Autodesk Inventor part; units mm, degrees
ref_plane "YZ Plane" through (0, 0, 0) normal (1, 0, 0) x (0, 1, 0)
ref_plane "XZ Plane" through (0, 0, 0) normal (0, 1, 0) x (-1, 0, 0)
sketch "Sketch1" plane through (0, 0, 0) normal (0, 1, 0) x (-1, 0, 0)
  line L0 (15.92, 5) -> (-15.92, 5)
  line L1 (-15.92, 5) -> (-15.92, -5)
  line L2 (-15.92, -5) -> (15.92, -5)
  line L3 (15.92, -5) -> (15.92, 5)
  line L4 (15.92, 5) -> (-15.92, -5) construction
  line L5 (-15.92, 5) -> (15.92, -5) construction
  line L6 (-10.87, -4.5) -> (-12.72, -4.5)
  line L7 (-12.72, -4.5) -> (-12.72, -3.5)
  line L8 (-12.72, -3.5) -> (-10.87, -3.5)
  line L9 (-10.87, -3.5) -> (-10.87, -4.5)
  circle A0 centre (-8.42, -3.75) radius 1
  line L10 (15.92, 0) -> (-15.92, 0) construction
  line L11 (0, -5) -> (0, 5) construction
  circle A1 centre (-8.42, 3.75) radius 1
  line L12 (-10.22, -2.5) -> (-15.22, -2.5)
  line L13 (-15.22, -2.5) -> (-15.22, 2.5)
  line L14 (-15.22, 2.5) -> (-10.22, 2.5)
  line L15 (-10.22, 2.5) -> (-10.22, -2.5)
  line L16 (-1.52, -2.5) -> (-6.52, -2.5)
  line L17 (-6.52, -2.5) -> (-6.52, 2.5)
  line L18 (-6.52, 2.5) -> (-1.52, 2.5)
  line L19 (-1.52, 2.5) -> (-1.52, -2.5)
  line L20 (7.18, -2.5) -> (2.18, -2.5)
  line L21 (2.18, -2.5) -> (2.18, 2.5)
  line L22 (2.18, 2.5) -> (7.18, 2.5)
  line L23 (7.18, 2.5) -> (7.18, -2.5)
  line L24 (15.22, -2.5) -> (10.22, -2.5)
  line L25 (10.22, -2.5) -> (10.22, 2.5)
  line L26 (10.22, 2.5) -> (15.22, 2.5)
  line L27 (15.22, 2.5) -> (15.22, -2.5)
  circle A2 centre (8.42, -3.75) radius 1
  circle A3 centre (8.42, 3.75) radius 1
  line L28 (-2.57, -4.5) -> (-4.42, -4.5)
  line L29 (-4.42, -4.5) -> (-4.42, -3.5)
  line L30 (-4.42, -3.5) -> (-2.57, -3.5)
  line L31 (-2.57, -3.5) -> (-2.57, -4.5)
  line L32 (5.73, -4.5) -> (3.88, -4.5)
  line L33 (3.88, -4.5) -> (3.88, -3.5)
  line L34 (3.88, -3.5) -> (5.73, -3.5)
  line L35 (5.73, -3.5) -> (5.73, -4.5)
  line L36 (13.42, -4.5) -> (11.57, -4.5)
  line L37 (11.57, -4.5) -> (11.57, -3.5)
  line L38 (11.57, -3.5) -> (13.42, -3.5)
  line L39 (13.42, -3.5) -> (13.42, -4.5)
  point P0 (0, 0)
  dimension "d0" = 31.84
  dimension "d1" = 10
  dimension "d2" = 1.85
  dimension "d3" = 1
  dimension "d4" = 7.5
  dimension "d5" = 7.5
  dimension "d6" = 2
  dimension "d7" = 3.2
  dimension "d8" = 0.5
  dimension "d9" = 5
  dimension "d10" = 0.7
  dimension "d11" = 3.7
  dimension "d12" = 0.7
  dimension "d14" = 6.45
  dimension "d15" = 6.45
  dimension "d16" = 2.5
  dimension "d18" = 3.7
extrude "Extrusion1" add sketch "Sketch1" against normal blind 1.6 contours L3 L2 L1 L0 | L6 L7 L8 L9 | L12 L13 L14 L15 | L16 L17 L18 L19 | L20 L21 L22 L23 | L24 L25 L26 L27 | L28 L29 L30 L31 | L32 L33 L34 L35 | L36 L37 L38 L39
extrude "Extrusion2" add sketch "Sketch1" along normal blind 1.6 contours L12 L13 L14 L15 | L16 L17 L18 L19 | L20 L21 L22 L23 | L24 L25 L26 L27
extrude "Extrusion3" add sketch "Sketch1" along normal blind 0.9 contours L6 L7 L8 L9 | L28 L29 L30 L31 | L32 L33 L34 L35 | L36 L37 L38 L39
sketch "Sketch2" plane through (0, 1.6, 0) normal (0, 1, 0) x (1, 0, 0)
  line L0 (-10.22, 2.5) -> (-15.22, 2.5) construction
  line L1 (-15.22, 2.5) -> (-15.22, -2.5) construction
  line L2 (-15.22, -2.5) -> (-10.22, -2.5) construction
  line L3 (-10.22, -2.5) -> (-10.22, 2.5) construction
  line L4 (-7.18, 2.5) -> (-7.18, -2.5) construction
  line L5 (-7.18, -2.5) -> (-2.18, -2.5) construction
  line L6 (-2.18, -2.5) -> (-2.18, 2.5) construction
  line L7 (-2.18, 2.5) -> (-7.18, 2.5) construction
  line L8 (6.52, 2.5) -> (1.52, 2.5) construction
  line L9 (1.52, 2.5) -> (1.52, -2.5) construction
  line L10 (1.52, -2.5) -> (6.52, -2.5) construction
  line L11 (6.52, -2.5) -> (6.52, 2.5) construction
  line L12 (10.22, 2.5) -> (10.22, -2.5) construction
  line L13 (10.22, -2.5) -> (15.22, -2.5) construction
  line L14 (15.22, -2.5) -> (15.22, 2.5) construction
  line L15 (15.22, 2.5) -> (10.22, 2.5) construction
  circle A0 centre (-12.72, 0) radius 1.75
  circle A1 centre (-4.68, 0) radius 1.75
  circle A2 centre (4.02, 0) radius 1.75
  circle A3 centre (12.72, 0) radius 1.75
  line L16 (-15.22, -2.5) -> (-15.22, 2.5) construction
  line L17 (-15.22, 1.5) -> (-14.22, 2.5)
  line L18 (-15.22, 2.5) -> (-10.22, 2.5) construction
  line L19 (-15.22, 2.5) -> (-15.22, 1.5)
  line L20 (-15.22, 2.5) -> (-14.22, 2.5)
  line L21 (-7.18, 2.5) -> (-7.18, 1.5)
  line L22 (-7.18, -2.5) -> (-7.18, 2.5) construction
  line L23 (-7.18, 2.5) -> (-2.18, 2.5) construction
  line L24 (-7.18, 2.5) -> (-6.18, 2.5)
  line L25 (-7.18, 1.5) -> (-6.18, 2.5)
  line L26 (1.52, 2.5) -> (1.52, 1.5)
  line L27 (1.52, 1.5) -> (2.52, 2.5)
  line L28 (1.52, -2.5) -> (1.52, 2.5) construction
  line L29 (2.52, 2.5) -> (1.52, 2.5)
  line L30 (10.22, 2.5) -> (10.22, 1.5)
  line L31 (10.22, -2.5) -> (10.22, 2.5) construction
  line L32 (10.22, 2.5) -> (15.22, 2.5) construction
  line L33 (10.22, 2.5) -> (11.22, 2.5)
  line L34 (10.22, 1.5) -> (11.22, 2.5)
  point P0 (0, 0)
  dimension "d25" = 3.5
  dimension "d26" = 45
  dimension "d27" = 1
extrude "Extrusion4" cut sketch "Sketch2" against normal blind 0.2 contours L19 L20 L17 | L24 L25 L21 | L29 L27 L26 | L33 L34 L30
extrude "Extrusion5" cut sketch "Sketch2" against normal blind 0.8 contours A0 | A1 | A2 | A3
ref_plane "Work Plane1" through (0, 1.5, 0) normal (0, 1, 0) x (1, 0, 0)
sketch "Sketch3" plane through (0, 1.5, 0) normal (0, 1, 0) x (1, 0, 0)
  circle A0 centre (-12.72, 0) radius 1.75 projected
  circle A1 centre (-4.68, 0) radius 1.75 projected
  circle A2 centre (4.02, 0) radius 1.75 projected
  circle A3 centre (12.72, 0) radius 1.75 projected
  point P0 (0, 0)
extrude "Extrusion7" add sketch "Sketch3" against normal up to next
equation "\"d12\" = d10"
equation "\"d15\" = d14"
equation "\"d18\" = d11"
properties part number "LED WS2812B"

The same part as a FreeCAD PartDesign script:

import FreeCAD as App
import Part
import Sketcher

V = App.Vector

doc = App.newDocument("Part")
body = doc.addObject("PartDesign::Body", "Body")

# Sketch on XZ plane
sketch1 = doc.addObject("Sketcher::SketchObject", "Sketch")
body.addObject(sketch1)
sketch1.AttachmentSupport = (doc.XZ_Plane, [""])
sketch1.MapMode = "FlatFace"
sketch1.addGeometry([
    Part.LineSegment(V(-15.9, -5, 0), V(-15.9, 5, 0)),  # 0
    Part.LineSegment(V(-15.9, 5, 0), V(15.9, 5, 0)),  # 1
    Part.LineSegment(V(15.9, 5, 0), V(15.9, -5, 0)),  # 2
    Part.LineSegment(V(15.9, -5, 0), V(-15.9, -5, 0)),  # 3
    Part.Circle(V(8.4, -3.8, 0), V(0, 0, 1), 1),  # 4
    Part.Circle(V(-8.4, -3.8, 0), V(0, 0, 1), 1),  # 5
    Part.Circle(V(8.4, 3.8, 0), V(0, 0, 1), 1),  # 6
    Part.Circle(V(-8.4, 3.8, 0), V(0, 0, 1), 1),  # 7
], False)
sketch1.addConstraint([
    Sketcher.Constraint("Coincident", 0, 2, 1, 1),
    Sketcher.Constraint("Coincident", 1, 2, 2, 1),
    Sketcher.Constraint("Coincident", 2, 2, 3, 1),
    Sketcher.Constraint("Coincident", 3, 2, 0, 1),
    Sketcher.Constraint("Vertical", 0),
    Sketcher.Constraint("Horizontal", 1),
    Sketcher.Constraint("Vertical", 2),
    Sketcher.Constraint("Horizontal", 3),
    Sketcher.Constraint("Equal", 4, 5),
    Sketcher.Constraint("Equal", 5, 6),
    Sketcher.Constraint("Equal", 6, 7),
    Sketcher.Constraint("Symmetric", 5, 3, 6, 3, -1, 1),
    Sketcher.Constraint("Symmetric", 4, 3, 7, 3, -1, 1),
    Sketcher.Constraint("Symmetric", 0, 2, 2, 2, -1, 1),
    Sketcher.Constraint("Symmetric", 4, 3, 5, 3, -2),
    Sketcher.Constraint("Diameter", 4, 2.0),
    Sketcher.Constraint("DistanceY", 0, 1, 0, 2, 10.0),
    Sketcher.Constraint("DistanceX", 1, 1, 1, 2, 31.84),
    Sketcher.Constraint("DistanceY", 4, 3, 6, 3, 7.5),
    Sketcher.Constraint("DistanceX", 0, 2, 7, 3, 7.5),
])
pad1 = doc.addObject("PartDesign::Pad", "Pad")
body.addObject(pad1)
pad1.Profile = sketch1
pad1.Length = 1.6

# Sketch on XZ plane
sketch2 = doc.addObject("Sketcher::SketchObject", "Sketch001")
body.addObject(sketch2)
sketch2.AttachmentSupport = (doc.XZ_Plane, [""])
sketch2.MapMode = "FlatFace"
sketch2.addGeometry([
    Part.LineSegment(V(15, -2, 0), V(10, -2, 0)),  # 0
    Part.LineSegment(V(10, -2, 0), V(10, 2, 0)),  # 1
    Part.LineSegment(V(10, 2, 0), V(15, 2, 0)),  # 2
    Part.LineSegment(V(15, 2, 0), V(15, -2, 0)),  # 3
    Part.LineSegment(V(7, -2, 0), V(2, -2, 0)),  # 4
    Part.LineSegment(V(2, -2, 0), V(2, 2, 0)),  # 5
    Part.LineSegment(V(2, 2, 0), V(7, 2, 0)),  # 6
    Part.LineSegment(V(7, 2, 0), V(7, -2, 0)),  # 7
    Part.LineSegment(V(-2, -2, 0), V(-7, -2, 0)),  # 8
    Part.LineSegment(V(-7, -2, 0), V(-7, 2, 0)),  # 9
    Part.LineSegment(V(-7, 2, 0), V(-2, 2, 0)),  # 10
    Part.LineSegment(V(-2, 2, 0), V(-2, -2, 0)),  # 11
    Part.LineSegment(V(-10, -2, 0), V(-15, -2, 0)),  # 12
    Part.LineSegment(V(-15, -2, 0), V(-15, 2, 0)),  # 13
    Part.LineSegment(V(-15, 2, 0), V(-10, 2, 0)),  # 14
    Part.LineSegment(V(-10, 2, 0), V(-10, -2, 0)),  # 15
], False)
sketch2.addConstraint([
    Sketcher.Constraint("Coincident", 0, 2, 1, 1),
    Sketcher.Constraint("Coincident", 1, 2, 2, 1),
    Sketcher.Constraint("Coincident", 2, 2, 3, 1),
    Sketcher.Constraint("Coincident", 3, 2, 0, 1),
    Sketcher.Constraint("Coincident", 4, 2, 5, 1),
    Sketcher.Constraint("Coincident", 5, 2, 6, 1),
    Sketcher.Constraint("Coincident", 6, 2, 7, 1),
    Sketcher.Constraint("Coincident", 7, 2, 4, 1),
    Sketcher.Constraint("Coincident", 8, 2, 9, 1),
    Sketcher.Constraint("Coincident", 9, 2, 10, 1),
    Sketcher.Constraint("Coincident", 10, 2, 11, 1),
    Sketcher.Constraint("Coincident", 11, 2, 8, 1),
    Sketcher.Constraint("Coincident", 12, 2, 13, 1),
    Sketcher.Constraint("Coincident", 13, 2, 14, 1),
    Sketcher.Constraint("Coincident", 14, 2, 15, 1),
    Sketcher.Constraint("Coincident", 15, 2, 12, 1),
    Sketcher.Constraint("Horizontal", 0),
    Sketcher.Constraint("Vertical", 1),
    Sketcher.Constraint("Horizontal", 2),
    Sketcher.Constraint("Vertical", 3),
    Sketcher.Constraint("Horizontal", 4),
    Sketcher.Constraint("Vertical", 5),
    Sketcher.Constraint("Horizontal", 6),
    Sketcher.Constraint("Vertical", 7),
    Sketcher.Constraint("Horizontal", 8),
    Sketcher.Constraint("Vertical", 9),
    Sketcher.Constraint("Horizontal", 10),
    Sketcher.Constraint("Vertical", 11),
    Sketcher.Constraint("Horizontal", 12),
    Sketcher.Constraint("Vertical", 13),
    Sketcher.Constraint("Horizontal", 14),
    Sketcher.Constraint("Vertical", 15),
    Sketcher.Constraint("Symmetric", 2, 2, 12, 2, -1, 1),
    Sketcher.Constraint("Symmetric", 0, 2, 14, 2, -1, 1),
    Sketcher.Constraint("Horizontal", 3, 2, 4, 2),
    Sketcher.Constraint("Horizontal", 2, 2, 5, 2),
    Sketcher.Constraint("Horizontal", 7, 2, 8, 2),
    Sketcher.Constraint("Horizontal", 6, 2, 9, 2),
    Sketcher.Constraint("Horizontal", 11, 2, 12, 2),
    Sketcher.Constraint("Equal", 2, 4),
    Sketcher.Constraint("Equal", 6, 8),
    Sketcher.Constraint("Equal", 14, 1),
    Sketcher.Constraint("DistanceX", 0, 2, 0, 1, 5.0),
    Sketcher.Constraint("DistanceX", 6, 2, 1, 2, 3.7),
    Sketcher.Constraint("DistanceX", 10, 2, 5, 2, 3.7),
    Sketcher.Constraint("DistanceX", -1, 1, 0, 2, 10.22),
])
pad2 = doc.addObject("PartDesign::Pad", "Pad001")
body.addObject(pad2)
pad2.Profile = sketch2
pad2.Length = 1.6
pad2.Reversed = True

# Sketch on XZ plane
sketch3 = doc.addObject("Sketcher::SketchObject", "Sketch002")
body.addObject(sketch3)
sketch3.AttachmentSupport = (doc.XZ_Plane, [""])
sketch3.MapMode = "FlatFace"
sketch3.addGeometry([
    Part.LineSegment(V(12.7, -4.5, 0), V(10.9, -4.5, 0)),  # 0
    Part.LineSegment(V(10.9, -4.5, 0), V(10.9, -3.5, 0)),  # 1
    Part.LineSegment(V(10.9, -3.5, 0), V(12.7, -3.5, 0)),  # 2
    Part.LineSegment(V(12.7, -3.5, 0), V(12.7, -4.5, 0)),  # 3
    Part.LineSegment(V(4.4, -4.5, 0), V(2.6, -4.5, 0)),  # 4
    Part.LineSegment(V(2.6, -4.5, 0), V(2.6, -3.5, 0)),  # 5
    Part.LineSegment(V(2.6, -3.5, 0), V(4.4, -3.5, 0)),  # 6
    Part.LineSegment(V(4.4, -3.5, 0), V(4.4, -4.5, 0)),  # 7
    Part.LineSegment(V(-3.9, -4.5, 0), V(-5.7, -4.5, 0)),  # 8
    Part.LineSegment(V(-5.7, -4.5, 0), V(-5.7, -3.5, 0)),  # 9
    Part.LineSegment(V(-5.7, -3.5, 0), V(-3.9, -3.5, 0)),  # 10
    Part.LineSegment(V(-3.9, -3.5, 0), V(-3.9, -4.5, 0)),  # 11
    Part.LineSegment(V(-11.6, -4.5, 0), V(-13.4, -4.5, 0)),  # 12
    Part.LineSegment(V(-13.4, -4.5, 0), V(-13.4, -3.5, 0)),  # 13
    Part.LineSegment(V(-13.4, -3.5, 0), V(-11.6, -3.5, 0)),  # 14
    Part.LineSegment(V(-11.6, -3.5, 0), V(-11.6, -4.5, 0)),  # 15
], False)
sketch3.addConstraint([
    Sketcher.Constraint("Coincident", 0, 2, 1, 1),
    Sketcher.Constraint("Coincident", 1, 2, 2, 1),
    Sketcher.Constraint("Coincident", 2, 2, 3, 1),
    Sketcher.Constraint("Coincident", 3, 2, 0, 1),
    Sketcher.Constraint("Coincident", 4, 2, 5, 1),
    Sketcher.Constraint("Coincident", 5, 2, 6, 1),
    Sketcher.Constraint("Coincident", 6, 2, 7, 1),
    Sketcher.Constraint("Coincident", 7, 2, 4, 1),
    Sketcher.Constraint("Coincident", 8, 2, 9, 1),
    Sketcher.Constraint("Coincident", 9, 2, 10, 1),
    Sketcher.Constraint("Coincident", 10, 2, 11, 1),
    Sketcher.Constraint("Coincident", 11, 2, 8, 1),
    Sketcher.Constraint("Coincident", 12, 2, 13, 1),
    Sketcher.Constraint("Coincident", 13, 2, 14, 1),
    Sketcher.Constraint("Coincident", 14, 2, 15, 1),
    Sketcher.Constraint("Coincident", 15, 2, 12, 1),
    Sketcher.Constraint("Horizontal", 0),
    Sketcher.Constraint("Vertical", 1),
    Sketcher.Constraint("Horizontal", 2),
    Sketcher.Constraint("Vertical", 3),
    Sketcher.Constraint("Horizontal", 4),
    Sketcher.Constraint("Vertical", 5),
    Sketcher.Constraint("Horizontal", 6),
    Sketcher.Constraint("Vertical", 7),
    Sketcher.Constraint("Horizontal", 8),
    Sketcher.Constraint("Vertical", 9),
    Sketcher.Constraint("Horizontal", 10),
    Sketcher.Constraint("Vertical", 11),
    Sketcher.Constraint("Horizontal", 12),
    Sketcher.Constraint("Vertical", 13),
    Sketcher.Constraint("Horizontal", 14),
    Sketcher.Constraint("Vertical", 15),
    Sketcher.Constraint("Horizontal", 3, 2, 4, 2),
    Sketcher.Constraint("Horizontal", 2, 2, 5, 2),
    Sketcher.Constraint("Horizontal", 7, 2, 8, 2),
    Sketcher.Constraint("Horizontal", 6, 2, 9, 2),
    Sketcher.Constraint("Horizontal", 11, 2, 12, 2),
    Sketcher.Constraint("Horizontal", 10, 2, 13, 2),
    Sketcher.Constraint("Equal", 2, 4),
    Sketcher.Constraint("Equal", 6, 8),
    Sketcher.Constraint("Equal", 10, 12),
    Sketcher.Constraint("DistanceY", 1, 1, 1, 2, 1.0),
    Sketcher.Constraint("DistanceX", 0, 2, 0, 1, 1.85),
    Sketcher.Constraint("DistanceX", 6, 2, 1, 2, 6.45),
    Sketcher.Constraint("DistanceX", 10, 2, 5, 2, 6.45),
    Sketcher.Constraint("DistanceY", 0, 2, -1, 1, 4.5),
    Sketcher.Constraint("DistanceX", -1, 1, 0, 2, 10.87),
    Sketcher.Constraint("DistanceX", 12, 2, -1, 1, 13.42),
])
pad3 = doc.addObject("PartDesign::Pad", "Pad002")
body.addObject(pad3)
pad3.Profile = sketch3
pad3.Length = 0.9
pad3.Reversed = True

# Sketch on XZ plane
sketch4 = doc.addObject("Sketcher::SketchObject", "Sketch003")
body.addObject(sketch4)
sketch4.AttachmentSupport = (doc.XZ_Plane, [""])
sketch4.MapMode = "FlatFace"
sketch4.AttachmentOffset = App.Placement(V(0, 0, -1.6), App.Rotation())
sketch4.addGeometry([
    Part.LineSegment(V(-15.2, -2.5, 0), V(-15.2, -1.5, 0)),  # 0
    Part.LineSegment(V(-15.2, -1.5, 0), V(-14.2, -2.5, 0)),  # 1
    Part.LineSegment(V(-14.2, -2.5, 0), V(-15.2, -2.5, 0)),  # 2
    Part.LineSegment(V(-6.2, -2.5, 0), V(-7.2, -2.5, 0)),  # 3
    Part.LineSegment(V(-7.2, -2.5, 0), V(-7.2, -1.5, 0)),  # 4
    Part.LineSegment(V(-7.2, -1.5, 0), V(-6.2, -2.5, 0)),  # 5
    Part.LineSegment(V(2.5, -2.5, 0), V(1.5, -2.5, 0)),  # 6
    Part.LineSegment(V(1.5, -2.5, 0), V(1.5, -1.5, 0)),  # 7
    Part.LineSegment(V(1.5, -1.5, 0), V(2.5, -2.5, 0)),  # 8
    Part.LineSegment(V(11.2, -2.5, 0), V(10.2, -2.5, 0)),  # 9
    Part.LineSegment(V(10.2, -2.5, 0), V(10.2, -1.5, 0)),  # 10
    Part.LineSegment(V(10.2, -1.5, 0), V(11.2, -2.5, 0)),  # 11
], False)
sketch4.addConstraint([
    Sketcher.Constraint("Coincident", 0, 2, 1, 1),
    Sketcher.Constraint("Coincident", 1, 2, 2, 1),
    Sketcher.Constraint("Coincident", 2, 2, 0, 1),
    Sketcher.Constraint("Coincident", 3, 2, 4, 1),
    Sketcher.Constraint("Coincident", 4, 2, 5, 1),
    Sketcher.Constraint("Coincident", 5, 2, 3, 1),
    Sketcher.Constraint("Coincident", 6, 2, 7, 1),
    Sketcher.Constraint("Coincident", 7, 2, 8, 1),
    Sketcher.Constraint("Coincident", 8, 2, 6, 1),
    Sketcher.Constraint("Coincident", 9, 2, 10, 1),
    Sketcher.Constraint("Coincident", 10, 2, 11, 1),
    Sketcher.Constraint("Coincident", 11, 2, 9, 1),
    Sketcher.Constraint("Vertical", 0),
    Sketcher.Constraint("Horizontal", 2),
    Sketcher.Constraint("Horizontal", 3),
    Sketcher.Constraint("Vertical", 4),
    Sketcher.Constraint("Horizontal", 6),
    Sketcher.Constraint("Vertical", 7),
    Sketcher.Constraint("Horizontal", 9),
    Sketcher.Constraint("Vertical", 10),
    Sketcher.Constraint("Parallel", 1, 5),
    Sketcher.Constraint("Parallel", 5, 8),
    Sketcher.Constraint("Parallel", 8, 11),
    Sketcher.Constraint("Horizontal", 2, 2, 3, 2),
    Sketcher.Constraint("Horizontal", 0, 2, 4, 2),
    Sketcher.Constraint("Horizontal", 5, 2, 6, 2),
    Sketcher.Constraint("Horizontal", 4, 2, 7, 2),
    Sketcher.Constraint("Horizontal", 8, 2, 9, 2),
    Sketcher.Constraint("Horizontal", 7, 2, 10, 2),
    Sketcher.Constraint("Equal", 9, 0),
    Sketcher.Constraint("DistanceX", 2, 2, 2, 1, 1.0),
    Sketcher.Constraint("DistanceY", 0, 2, -1, 1, 1.5),
    Sketcher.Constraint("DistanceX", 5, 2, 6, 2, 7.7),
    Sketcher.Constraint("DistanceX", 8, 2, 9, 2, 7.7),
    Sketcher.Constraint("DistanceX", 0, 2, -1, 1, 15.22),
    Sketcher.Constraint("DistanceX", 3, 2, -1, 1, 7.18),
])
pocket1 = doc.addObject("PartDesign::Pocket", "Pocket")
body.addObject(pocket1)
pocket1.Profile = sketch4
pocket1.Length = 0.2
pocket1.Reversed = True

# Sketch on XZ plane
sketch5 = doc.addObject("Sketcher::SketchObject", "Sketch004")
body.addObject(sketch5)
sketch5.AttachmentSupport = (doc.XZ_Plane, [""])
sketch5.MapMode = "FlatFace"
sketch5.AttachmentOffset = App.Placement(V(0, 0, -1.6), App.Rotation())
sketch5.addGeometry([
    Part.Circle(V(-12.7, 0, 0), V(0, 0, 1), 1.8),
    Part.Circle(V(-4.7, 0, 0), V(0, 0, 1), 1.8),
    Part.Circle(V(4, 0, 0), V(0, 0, 1), 1.8),
    Part.Circle(V(12.7, 0, 0), V(0, 0, 1), 1.8),
], False)
sketch5.addConstraint([
    Sketcher.Constraint("Equal", 0, 1),
    Sketcher.Constraint("Equal", 1, 2),
    Sketcher.Constraint("Equal", 2, 3),
    Sketcher.Constraint("Symmetric", 0, 3, 3, 3, -1, 1),
    Sketcher.Constraint("PointOnObject", 0, 3, -1),
    Sketcher.Constraint("PointOnObject", 1, 3, -1),
    Sketcher.Constraint("PointOnObject", 2, 3, -1),
    Sketcher.Constraint("Diameter", 0, 3.5),
    Sketcher.Constraint("DistanceX", 1, 3, 2, 3, 8.7),
    Sketcher.Constraint("DistanceX", 2, 3, 3, 3, 8.7),
    Sketcher.Constraint("DistanceX", 0, 3, -1, 1, 12.72),
])
pocket2 = doc.addObject("PartDesign::Pocket", "Pocket001")
body.addObject(pocket2)
pocket2.Profile = sketch5
pocket2.Length = 0.8
pocket2.Reversed = True

# Sketch on XZ plane
sketch6 = doc.addObject("Sketcher::SketchObject", "Sketch005")
body.addObject(sketch6)
sketch6.AttachmentSupport = (doc.XZ_Plane, [""])
sketch6.MapMode = "FlatFace"
sketch6.AttachmentOffset = App.Placement(V(0, 0, -1.5), App.Rotation())
sketch6.addGeometry([
    Part.Circle(V(-12.7, 0, 0), V(0, 0, 1), 1.8),
    Part.Circle(V(-4.7, 0, 0), V(0, 0, 1), 1.8),
    Part.Circle(V(4, 0, 0), V(0, 0, 1), 1.8),
    Part.Circle(V(12.7, 0, 0), V(0, 0, 1), 1.8),
], False)
sketch6.addConstraint([
    Sketcher.Constraint("Equal", 0, 1),
    Sketcher.Constraint("Equal", 1, 2),
    Sketcher.Constraint("Equal", 2, 3),
    Sketcher.Constraint("Symmetric", 0, 3, 3, 3, -1, 1),
    Sketcher.Constraint("PointOnObject", 0, 3, -1),
    Sketcher.Constraint("PointOnObject", 1, 3, -1),
    Sketcher.Constraint("PointOnObject", 2, 3, -1),
    Sketcher.Constraint("Diameter", 0, 3.5),
    Sketcher.Constraint("DistanceX", 1, 3, 2, 3, 8.7),
    Sketcher.Constraint("DistanceX", 2, 3, 3, 3, 8.7),
    Sketcher.Constraint("DistanceX", 0, 3, -1, 1, 12.72),
])
pad4 = doc.addObject("PartDesign::Pad", "Pad003")
body.addObject(pad4)
pad4.Profile = sketch6
pad4.Type = "UpToFirst"

doc.recompute()
